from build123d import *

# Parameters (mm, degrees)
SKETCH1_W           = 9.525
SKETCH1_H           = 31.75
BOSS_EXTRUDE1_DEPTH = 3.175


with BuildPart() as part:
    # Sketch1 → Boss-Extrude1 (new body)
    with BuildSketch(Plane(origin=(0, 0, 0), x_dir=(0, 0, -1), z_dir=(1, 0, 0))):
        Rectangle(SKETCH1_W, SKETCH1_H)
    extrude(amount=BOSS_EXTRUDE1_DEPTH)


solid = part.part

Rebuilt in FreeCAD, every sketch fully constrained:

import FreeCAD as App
import Part
import Sketcher

V = App.Vector
Q = App.Units.Quantity


def add_polygon(sketch, points):
    """Adds a closed chain of lines whose ends are joined by coincident constraints."""
    first, n = sketch.GeometryCount, len(points)
    for a, b in zip(points, points[1:] + points[:1]):
        sketch.addGeometry(Part.LineSegment(App.Vector(*a, 0), App.Vector(*b, 0)), False)
    for i in range(n):
        sketch.addConstraint(Sketcher.Constraint("Coincident", first + i, 2, first + (i + 1) % n, 1))

doc = App.newDocument("Part")
body = doc.addObject("PartDesign::Body", "Body")

# Sketch on YZ plane
sketch1 = body.newObject("Sketcher::SketchObject", "Sketch")
sketch1.AttachmentSupport = (doc.getObject("YZ_Plane"), [""])
sketch1.MapMode = "FlatFace"
add_polygon(sketch1, [(16, 5), (-16, 5), (-16, -5), (16, -5)])  # lines 0-3
sketch1.addConstraint([
    Sketcher.Constraint("Horizontal", 0),
    Sketcher.Constraint("Vertical", 1),
    Sketcher.Constraint("Horizontal", 2),
    Sketcher.Constraint("Vertical", 3),
    Sketcher.Constraint("Symmetric", 0, 2, 2, 2, -1, 1),
    Sketcher.Constraint("DistanceX", 0, 2, 0, 1, Q("1.25 in")),
    Sketcher.Constraint("DistanceY", 1, 2, 1, 1, Q("0.375 in")),
])
pad1 = body.newObject("PartDesign::Pad", "Pad")
pad1.Profile = sketch1
pad1.Length = Q("0.125 in")

doc.recompute()
